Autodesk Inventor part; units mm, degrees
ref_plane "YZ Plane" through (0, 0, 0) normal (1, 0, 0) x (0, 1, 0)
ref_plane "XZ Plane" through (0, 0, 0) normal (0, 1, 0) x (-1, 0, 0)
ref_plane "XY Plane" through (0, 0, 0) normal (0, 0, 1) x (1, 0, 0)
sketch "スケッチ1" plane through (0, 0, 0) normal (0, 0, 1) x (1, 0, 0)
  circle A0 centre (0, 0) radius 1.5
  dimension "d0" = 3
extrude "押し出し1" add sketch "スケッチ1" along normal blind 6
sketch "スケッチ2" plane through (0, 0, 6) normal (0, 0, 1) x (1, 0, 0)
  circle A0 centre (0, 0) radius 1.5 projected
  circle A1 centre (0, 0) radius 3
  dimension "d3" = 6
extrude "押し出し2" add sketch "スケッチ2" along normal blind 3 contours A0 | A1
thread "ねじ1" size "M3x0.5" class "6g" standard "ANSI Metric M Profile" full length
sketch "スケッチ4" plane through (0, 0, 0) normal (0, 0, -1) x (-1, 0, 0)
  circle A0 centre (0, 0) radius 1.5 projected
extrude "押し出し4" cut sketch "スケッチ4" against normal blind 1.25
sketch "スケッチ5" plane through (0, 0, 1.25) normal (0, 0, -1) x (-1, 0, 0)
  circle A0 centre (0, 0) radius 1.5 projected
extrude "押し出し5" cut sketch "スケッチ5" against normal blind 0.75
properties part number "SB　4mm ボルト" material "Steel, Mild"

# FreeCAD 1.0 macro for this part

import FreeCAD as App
import Part
import Sketcher

V = App.Vector
Q = App.Units.Quantity

doc = App.newDocument("Part")
params = doc.addObject("Spreadsheet::Sheet", "Params")
for row, (alias, value) in enumerate([
    ("sketch1_diameter", "3 mm"),
    ("pad1_length", "6 mm"),
    ("sketch2_diameter", "6 mm"),
    ("pad2_length", "3 mm"),
    ("sketch3_diameter", "3 mm"),
    ("pocket1_length", "1.25 mm"),
    ("sketch4_diameter", "3 mm"),
    ("pocket2_length", "0.75 mm"),
], start=1):
    params.set(f"A{row}", alias)
    params.set(f"B{row}", "=" + value)
    params.setAlias(f"B{row}", alias)

body = doc.addObject("PartDesign::Body", "Body")

# Sketch on XY plane
sketch1 = body.newObject("Sketcher::SketchObject", "Sketch")
sketch1.AttachmentSupport = (doc.getObject("XY_Plane"), [""])
sketch1.MapMode = "FlatFace"
sketch1.addGeometry(Part.Circle(V(0, 0, 0), V(0, 0, 1), 1.5), False)
sketch1.addConstraint(Sketcher.Constraint("Coincident", 0, 3, -1, 1))
sketch1.addConstraint(Sketcher.Constraint("Diameter", 0, Q("3 mm")))
sketch1.setExpression("Constraints[1]", "Params.sketch1_diameter")
pad1 = body.newObject("PartDesign::Pad", "Pad")
pad1.Profile = sketch1
pad1.setExpression("Length", "Params.pad1_length")

# Sketch on XY plane
sketch2 = body.newObject("Sketcher::SketchObject", "Sketch001")
sketch2.AttachmentSupport = (doc.getObject("XY_Plane"), [""])
sketch2.MapMode = "FlatFace"
sketch2.AttachmentOffset = App.Placement(V(0, 0, 6), App.Rotation())
sketch2.addGeometry(Part.Circle(V(0, 0, 0), V(0, 0, 1), 3), False)
sketch2.addConstraint(Sketcher.Constraint("Coincident", 0, 3, -1, 1))
sketch2.addConstraint(Sketcher.Constraint("Diameter", 0, Q("6 mm")))
sketch2.setExpression("Constraints[1]", "Params.sketch2_diameter")
pad2 = body.newObject("PartDesign::Pad", "Pad001")
pad2.Profile = sketch2
pad2.setExpression("Length", "Params.pad2_length")

# Sketch on XY plane
sketch3 = body.newObject("Sketcher::SketchObject", "Sketch002")
sketch3.AttachmentSupport = (doc.getObject("XY_Plane"), [""])
sketch3.MapMode = "FlatFace"
sketch3.addGeometry(Part.Circle(V(0, 0, 0), V(0, 0, 1), 1.5), False)
sketch3.addConstraint(Sketcher.Constraint("Coincident", 0, 3, -1, 1))
sketch3.addConstraint(Sketcher.Constraint("Diameter", 0, Q("3 mm")))
sketch3.setExpression("Constraints[1]", "Params.sketch3_diameter")
pocket1 = body.newObject("PartDesign::Pocket", "Pocket")
pocket1.Profile = sketch3
pocket1.setExpression("Length", "Params.pocket1_length")
pocket1.Reversed = True

# Sketch on XY plane
sketch4 = body.newObject("Sketcher::SketchObject", "Sketch003")
sketch4.AttachmentSupport = (doc.getObject("XY_Plane"), [""])
sketch4.MapMode = "FlatFace"
sketch4.AttachmentOffset = App.Placement(V(0, 0, 1.25), App.Rotation())
sketch4.addGeometry(Part.Circle(V(0, 0, 0), V(0, 0, 1), 1.5), False)
sketch4.addConstraint(Sketcher.Constraint("Coincident", 0, 3, -1, 1))
sketch4.addConstraint(Sketcher.Constraint("Diameter", 0, Q("3 mm")))
sketch4.setExpression("Constraints[1]", "Params.sketch4_diameter")
pocket2 = body.newObject("PartDesign::Pocket", "Pocket001")
pocket2.Profile = sketch4
pocket2.setExpression("Length", "Params.pocket2_length")
pocket2.Reversed = True

doc.recompute()
